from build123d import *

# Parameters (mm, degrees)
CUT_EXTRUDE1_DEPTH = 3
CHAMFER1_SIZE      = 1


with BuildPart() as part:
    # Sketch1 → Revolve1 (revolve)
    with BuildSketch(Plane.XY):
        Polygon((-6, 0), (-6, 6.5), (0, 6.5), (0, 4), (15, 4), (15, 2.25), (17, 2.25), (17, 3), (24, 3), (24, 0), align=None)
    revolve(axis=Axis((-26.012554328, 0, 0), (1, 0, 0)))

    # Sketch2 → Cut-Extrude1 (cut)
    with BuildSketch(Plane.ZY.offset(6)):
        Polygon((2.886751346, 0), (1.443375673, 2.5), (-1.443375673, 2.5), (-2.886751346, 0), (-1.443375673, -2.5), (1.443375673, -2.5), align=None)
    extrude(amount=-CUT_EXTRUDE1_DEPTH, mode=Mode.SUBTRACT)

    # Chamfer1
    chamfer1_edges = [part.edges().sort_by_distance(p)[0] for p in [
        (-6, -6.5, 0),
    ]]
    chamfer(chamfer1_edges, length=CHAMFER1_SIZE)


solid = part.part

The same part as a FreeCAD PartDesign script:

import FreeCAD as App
import Part
import Sketcher
from FreeCAD import Vector
Q = App.Units.Quantity


def edges_at(feature, points):
    """Names of the edges that pass closest to the given points."""
    edges = feature.Shape.Edges
    near = lambda p: min(range(len(edges)), key=lambda i: edges[i].distToShape(Part.Vertex(*p))[0])
    return sorted({f"Edge{near(p) + 1}" for p in points})

doc = App.newDocument("Part")
body = doc.addObject("PartDesign::Body", "Body")

sketch1 = doc.addObject("Sketcher::SketchObject", "Sketch")
body.addObject(sketch1)
sketch1.AttachmentSupport = (doc.XY_Plane, [""])
sketch1.MapMode = "FlatFace"
sketch1.addGeometry(Part.LineSegment(Vector(-6, 6.5, 0), Vector(-6, 0, 0)), False)
sketch1.addGeometry(Part.LineSegment(Vector(-6, 0, 0), Vector(24, 0, 0)), False)
sketch1.addGeometry(Part.LineSegment(Vector(24, 0, 0), Vector(24, 3, 0)), False)
sketch1.addGeometry(Part.LineSegment(Vector(24, 3, 0), Vector(17, 3, 0)), False)
sketch1.addGeometry(Part.LineSegment(Vector(17, 3, 0), Vector(17, 2.25, 0)), False)
sketch1.addGeometry(Part.LineSegment(Vector(17, 2.25, 0), Vector(15, 2.25, 0)), False)
sketch1.addGeometry(Part.LineSegment(Vector(15, 2.25, 0), Vector(15, 4, 0)), False)
sketch1.addGeometry(Part.LineSegment(Vector(15, 4, 0), Vector(0, 4, 0)), False)
sketch1.addGeometry(Part.LineSegment(Vector(0, 4, 0), Vector(0, 6.5, 0)), False)
sketch1.addGeometry(Part.LineSegment(Vector(0, 6.5, 0), Vector(-6, 6.5, 0)), False)
sketch1.addConstraint(Sketcher.Constraint("Coincident", 0, 2, 1, 1))
sketch1.addConstraint(Sketcher.Constraint("Coincident", 1, 2, 2, 1))
sketch1.addConstraint(Sketcher.Constraint("Coincident", 2, 2, 3, 1))
sketch1.addConstraint(Sketcher.Constraint("Coincident", 3, 2, 4, 1))
sketch1.addConstraint(Sketcher.Constraint("Coincident", 4, 2, 5, 1))
sketch1.addConstraint(Sketcher.Constraint("Coincident", 5, 2, 6, 1))
sketch1.addConstraint(Sketcher.Constraint("Coincident", 6, 2, 7, 1))
sketch1.addConstraint(Sketcher.Constraint("Coincident", 7, 2, 8, 1))
sketch1.addConstraint(Sketcher.Constraint("Coincident", 8, 2, 9, 1))
sketch1.addConstraint(Sketcher.Constraint("Coincident", 9, 2, 0, 1))
sketch1.addConstraint(Sketcher.Constraint("Vertical", 0))
sketch1.addConstraint(Sketcher.Constraint("Horizontal", 1))
sketch1.addConstraint(Sketcher.Constraint("Vertical", 2))
sketch1.addConstraint(Sketcher.Constraint("Horizontal", 3))
sketch1.addConstraint(Sketcher.Constraint("Vertical", 4))
sketch1.addConstraint(Sketcher.Constraint("Horizontal", 5))
sketch1.addConstraint(Sketcher.Constraint("Vertical", 6))
sketch1.addConstraint(Sketcher.Constraint("Horizontal", 7))
sketch1.addConstraint(Sketcher.Constraint("Vertical", 8))
sketch1.addConstraint(Sketcher.Constraint("Horizontal", 9))
sketch1.addConstraint(Sketcher.Constraint("PointOnObject", 0, 2, -1))
sketch1.addConstraint(Sketcher.Constraint("PointOnObject", 7, 2, -2))
sketch1.addConstraint(Sketcher.Constraint("DistanceX", 1, 1, 1, 2, Q("30 mm")))
sketch1.addConstraint(Sketcher.Constraint("DistanceX", 3, 2, 3, 1, Q("7 mm")))
sketch1.addConstraint(Sketcher.Constraint("DistanceX", 5, 2, 5, 1, Q("2 mm")))
sketch1.addConstraint(Sketcher.Constraint("DistanceX", 7, 2, 7, 1, Q("15 mm")))
sketch1.addConstraint(Sketcher.Constraint("DistanceY", 2, 1, 2, 2, Q("3 mm")))
sketch1.addConstraint(Sketcher.Constraint("DistanceY", 0, 2, 0, 1, Q("6.5 mm")))
sketch1.addConstraint(Sketcher.Constraint("DistanceY", 8, 1, 8, 2, Q("2.5 mm")))
sketch1.addConstraint(Sketcher.Constraint("DistanceY", 4, 2, 4, 1, Q("0.75 mm")))
revolution = doc.addObject("PartDesign::Revolution", "Revolution")
body.addObject(revolution)
revolution.Profile = sketch1
revolution.ReferenceAxis = (sketch1, ["H_Axis"])
revolution.Angle = 360

sketch2 = doc.addObject("Sketcher::SketchObject", "Sketch001")
body.addObject(sketch2)
sketch2.AttachmentSupport = (doc.YZ_Plane, [""])
sketch2.MapMode = "FlatFace"
sketch2.AttachmentOffset = App.Placement(Vector(0, 0, -6), App.Rotation())
sketch2.addGeometry(Part.LineSegment(Vector(0, 2.886751, 0), Vector(2.5, 1.443376, 0)), False)
sketch2.addGeometry(Part.LineSegment(Vector(2.5, 1.443376, 0), Vector(2.5, -1.443376, 0)), False)
sketch2.addGeometry(Part.LineSegment(Vector(2.5, -1.443376, 0), Vector(0, -2.886751, 0)), False)
sketch2.addGeometry(Part.LineSegment(Vector(0, -2.886751, 0), Vector(-2.5, -1.443376, 0)), False)
sketch2.addGeometry(Part.LineSegment(Vector(-2.5, -1.443376, 0), Vector(-2.5, 1.443376, 0)), False)
sketch2.addGeometry(Part.LineSegment(Vector(-2.5, 1.443376, 0), Vector(0, 2.886751, 0)), False)
sketch2.addConstraint(Sketcher.Constraint("Coincident", 0, 2, 1, 1))
sketch2.addConstraint(Sketcher.Constraint("Coincident", 1, 2, 2, 1))
sketch2.addConstraint(Sketcher.Constraint("Coincident", 2, 2, 3, 1))
sketch2.addConstraint(Sketcher.Constraint("Coincident", 3, 2, 4, 1))
sketch2.addConstraint(Sketcher.Constraint("Coincident", 4, 2, 5, 1))
sketch2.addConstraint(Sketcher.Constraint("Coincident", 5, 2, 0, 1))
sketch2.addConstraint(Sketcher.Constraint("Vertical", 1))
sketch2.addConstraint(Sketcher.Constraint("Vertical", 4))
sketch2.addConstraint(Sketcher.Constraint("Symmetric", 0, 2, 3, 2, -1, 1))
sketch2.addConstraint(Sketcher.Constraint("Symmetric", 2, 2, 5, 2, -1, 1))
sketch2.addConstraint(Sketcher.Constraint("PointOnObject", 2, 2, -2))
sketch2.addConstraint(Sketcher.Constraint("Parallel", 2, 5))
sketch2.addConstraint(Sketcher.Constraint("Horizontal", 1, 2, 3, 2))
sketch2.addConstraint(Sketcher.Constraint("Angle", 0, Q("-30 deg")))
sketch2.addConstraint(Sketcher.Constraint("DistanceX", 3, 2, 1, 2, Q("5 mm")))
sketch2.addConstraint(Sketcher.Constraint("DistanceY", 1, 2, 1, 1, Q("2.886751 mm")))
pocket1 = doc.addObject("PartDesign::Pocket", "Pocket")
body.addObject(pocket1)
pocket1.Profile = sketch2
pocket1.Length = 3
pocket1.Reversed = True
doc.recompute()

chamfer = doc.addObject("PartDesign::Chamfer", "Chamfer")
body.addObject(chamfer)
chamfer.Base = (pocket1, edges_at(pocket1, [(-6, -6.5, 0)]))
chamfer.Size = 1

doc.recompute()
